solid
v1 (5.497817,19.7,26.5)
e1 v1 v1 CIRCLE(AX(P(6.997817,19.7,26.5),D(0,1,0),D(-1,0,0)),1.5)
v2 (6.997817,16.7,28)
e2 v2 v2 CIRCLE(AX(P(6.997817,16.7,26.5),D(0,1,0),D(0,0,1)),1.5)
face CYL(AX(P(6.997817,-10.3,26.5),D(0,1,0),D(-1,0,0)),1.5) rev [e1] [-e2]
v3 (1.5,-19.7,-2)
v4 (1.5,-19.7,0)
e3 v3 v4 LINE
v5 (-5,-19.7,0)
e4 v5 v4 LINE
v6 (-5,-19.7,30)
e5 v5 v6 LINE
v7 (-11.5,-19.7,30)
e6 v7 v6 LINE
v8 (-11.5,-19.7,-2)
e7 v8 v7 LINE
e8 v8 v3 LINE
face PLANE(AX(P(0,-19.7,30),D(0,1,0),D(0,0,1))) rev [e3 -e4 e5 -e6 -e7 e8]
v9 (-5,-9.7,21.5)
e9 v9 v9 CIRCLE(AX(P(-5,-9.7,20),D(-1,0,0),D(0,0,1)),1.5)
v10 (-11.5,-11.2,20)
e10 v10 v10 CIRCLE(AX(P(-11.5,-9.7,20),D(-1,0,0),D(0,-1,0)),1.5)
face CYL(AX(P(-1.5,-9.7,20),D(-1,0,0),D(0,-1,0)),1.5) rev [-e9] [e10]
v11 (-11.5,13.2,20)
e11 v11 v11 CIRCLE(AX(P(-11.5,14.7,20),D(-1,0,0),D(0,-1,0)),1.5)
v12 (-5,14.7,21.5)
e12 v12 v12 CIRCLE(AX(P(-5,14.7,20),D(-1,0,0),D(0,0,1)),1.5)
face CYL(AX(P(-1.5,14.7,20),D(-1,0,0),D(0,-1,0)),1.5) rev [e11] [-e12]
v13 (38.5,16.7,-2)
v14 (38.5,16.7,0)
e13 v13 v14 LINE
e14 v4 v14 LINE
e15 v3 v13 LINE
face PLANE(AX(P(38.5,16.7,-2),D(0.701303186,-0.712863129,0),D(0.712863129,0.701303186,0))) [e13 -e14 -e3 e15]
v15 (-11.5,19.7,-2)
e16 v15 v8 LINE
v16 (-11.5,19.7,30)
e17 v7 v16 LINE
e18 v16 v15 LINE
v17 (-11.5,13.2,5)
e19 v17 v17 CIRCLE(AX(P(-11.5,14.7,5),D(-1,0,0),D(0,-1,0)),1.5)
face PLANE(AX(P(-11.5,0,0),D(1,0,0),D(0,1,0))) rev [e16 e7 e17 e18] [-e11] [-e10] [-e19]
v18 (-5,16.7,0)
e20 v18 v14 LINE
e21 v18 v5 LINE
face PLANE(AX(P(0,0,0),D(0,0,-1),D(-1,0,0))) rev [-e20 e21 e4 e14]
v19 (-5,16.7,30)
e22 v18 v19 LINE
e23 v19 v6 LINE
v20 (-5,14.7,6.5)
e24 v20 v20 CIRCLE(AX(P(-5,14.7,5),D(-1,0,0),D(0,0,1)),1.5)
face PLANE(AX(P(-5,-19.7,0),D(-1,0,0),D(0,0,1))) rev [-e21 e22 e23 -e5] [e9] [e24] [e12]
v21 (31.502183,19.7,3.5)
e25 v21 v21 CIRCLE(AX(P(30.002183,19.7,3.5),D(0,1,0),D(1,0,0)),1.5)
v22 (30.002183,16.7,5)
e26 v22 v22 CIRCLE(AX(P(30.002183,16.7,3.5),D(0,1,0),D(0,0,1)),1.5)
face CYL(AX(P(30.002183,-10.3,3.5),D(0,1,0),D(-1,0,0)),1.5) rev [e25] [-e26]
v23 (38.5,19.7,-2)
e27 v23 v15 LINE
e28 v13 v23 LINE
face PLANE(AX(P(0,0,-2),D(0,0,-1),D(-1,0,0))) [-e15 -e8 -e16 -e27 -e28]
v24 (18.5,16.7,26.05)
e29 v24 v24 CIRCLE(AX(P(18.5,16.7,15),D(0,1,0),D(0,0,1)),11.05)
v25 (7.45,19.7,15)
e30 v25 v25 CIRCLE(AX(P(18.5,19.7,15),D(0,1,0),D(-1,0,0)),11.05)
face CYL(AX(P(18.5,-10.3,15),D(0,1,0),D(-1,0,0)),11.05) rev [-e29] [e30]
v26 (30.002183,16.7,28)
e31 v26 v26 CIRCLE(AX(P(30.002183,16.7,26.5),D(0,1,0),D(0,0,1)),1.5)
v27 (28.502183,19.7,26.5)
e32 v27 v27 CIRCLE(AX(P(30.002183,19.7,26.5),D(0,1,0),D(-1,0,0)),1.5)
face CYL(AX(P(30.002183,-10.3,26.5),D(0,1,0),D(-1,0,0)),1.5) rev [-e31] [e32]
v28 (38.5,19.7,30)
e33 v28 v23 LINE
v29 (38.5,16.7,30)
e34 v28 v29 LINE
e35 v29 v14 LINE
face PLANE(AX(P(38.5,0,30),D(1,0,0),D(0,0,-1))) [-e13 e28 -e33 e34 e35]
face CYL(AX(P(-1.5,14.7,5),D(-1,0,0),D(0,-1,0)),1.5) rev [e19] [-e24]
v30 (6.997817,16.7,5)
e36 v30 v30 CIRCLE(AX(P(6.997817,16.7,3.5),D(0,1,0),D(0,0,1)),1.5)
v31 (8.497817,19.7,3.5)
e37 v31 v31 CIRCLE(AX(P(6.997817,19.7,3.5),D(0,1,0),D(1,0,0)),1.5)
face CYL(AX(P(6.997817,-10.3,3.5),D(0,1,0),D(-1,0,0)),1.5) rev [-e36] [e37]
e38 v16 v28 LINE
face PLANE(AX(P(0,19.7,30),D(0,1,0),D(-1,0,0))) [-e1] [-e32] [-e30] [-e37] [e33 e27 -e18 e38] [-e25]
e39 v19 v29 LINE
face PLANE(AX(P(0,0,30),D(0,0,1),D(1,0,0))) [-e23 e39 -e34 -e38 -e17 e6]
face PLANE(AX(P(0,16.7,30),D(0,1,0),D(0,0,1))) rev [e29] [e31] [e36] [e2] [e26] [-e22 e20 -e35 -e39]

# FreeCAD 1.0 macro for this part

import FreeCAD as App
import Part
import Sketcher


def add_polygon(sketch, points):
    """Adds a closed chain of lines whose ends are joined by coincident constraints."""
    first, n = sketch.GeometryCount, len(points)
    for a, b in zip(points, points[1:] + points[:1]):
        sketch.addGeometry(Part.LineSegment(App.Vector(*a, 0), App.Vector(*b, 0)), False)
    for i in range(n):
        sketch.addConstraint(Sketcher.Constraint("Coincident", first + i, 2, first + (i + 1) % n, 1))

doc = App.newDocument("Part")
params = doc.addObject("Spreadsheet::Sheet", "Params")
for row, (alias, value) in enumerate([
    ("sketch1_width", "3 mm"),
    ("sketch1_width2", "37 mm"),
    ("sketch1_height", "36.4 mm"),
    ("pad1_length", "30 mm"),
    ("sketch2_diameter", "3 mm"),
    ("sketch2_diameter2", "22.1 mm"),
    ("pocket1_length", "30 mm"),
    ("sketch3_width", "40 mm"),
    ("sketch3_width2", "3 mm"),
    ("sketch3_height", "39.4 mm"),
    ("pad2_length", "2 mm"),
    ("sketch4_height", "32 mm"),
    ("sketch4_width", "39.4 mm"),
    ("pad3_length", "10 mm"),
    ("sketch5_width", "6.5 mm"),
    ("sketch5_height", "36.4 mm"),
    ("pocket2_length", "30 mm"),
    ("sketch6_diameter", "3 mm"),
    ("pocket3_length", "10 mm"),
], start=1):
    params.set(f"A{row}", alias)
    params.set(f"B{row}", "=" + value)
    params.setAlias(f"B{row}", alias)

body = doc.addObject("PartDesign::Body", "Body")

sketch1 = body.newObject("Sketcher::SketchObject", "Sketch")
sketch1.AttachmentSupport = (doc.getObject("XY_Plane"), [""])
sketch1.MapMode = "FlatFace"
add_polygon(sketch1, [(-1.5, -19.7), (1.5, -19.7), (1.5, 16.7), (38.5, 16.7), (38.5, 19.7), (-1.5, 19.7)])
sketch1.addConstraint([
    Sketcher.Constraint("Horizontal", 0),
    Sketcher.Constraint("Vertical", 1),
    Sketcher.Constraint("Horizontal", 2),
    Sketcher.Constraint("Vertical", 3),
    Sketcher.Constraint("Horizontal", 4),
    Sketcher.Constraint("Vertical", 5),
    Sketcher.Constraint("Symmetric", 0, 2, 4, 2, -1, 1),
    Sketcher.Constraint("Equal", 0, 3),
    Sketcher.Constraint("DistanceX", 0, 1, 0, 2, 3.0),
    Sketcher.Constraint("DistanceX", 2, 1, 2, 2, 37.0),
    Sketcher.Constraint("DistanceY", 1, 1, 1, 2, 36.4),
])
sketch1.setExpression("Constraints[14]", "Params.sketch1_width")
sketch1.setExpression("Constraints[15]", "Params.sketch1_width2")
sketch1.setExpression("Constraints[16]", "Params.sketch1_height")
pad1 = body.newObject("PartDesign::Pad", "Pad")
pad1.Profile = sketch1
pad1.setExpression("Length", "Params.pad1_length")

sketch2 = body.newObject("Sketcher::SketchObject", "Sketch001")
sketch2.AttachmentSupport = (doc.getObject("XZ_Plane"), [""])
sketch2.MapMode = "FlatFace"
sketch2.AttachmentOffset = App.Placement(App.Vector(0, 0, -19.7), App.Rotation())
sketch2.addGeometry([
    Part.Circle(App.Vector(18.5, 15, 0), App.Vector(0, 0, 1), 11.1),
    Part.Circle(App.Vector(7, 26.5, 0), App.Vector(0, 0, 1), 1.5),
    Part.Circle(App.Vector(30, 26.5, 0), App.Vector(0, 0, 1), 1.5),
    Part.Circle(App.Vector(30, 3.5, 0), App.Vector(0, 0, 1), 1.5),
    Part.Circle(App.Vector(7, 3.5, 0), App.Vector(0, 0, 1), 1.5),
], False)
sketch2.addConstraint([
    Sketcher.Constraint("Equal", 1, 2),
    Sketcher.Constraint("Equal", 2, 3),
    Sketcher.Constraint("Equal", 3, 4),
    Sketcher.Constraint("Horizontal", 1, 3, 2, 3),
    Sketcher.Constraint("Horizontal", 3, 3, 4, 3),
    Sketcher.Constraint("Vertical", 2, 3, 3, 3),
    Sketcher.Constraint("Vertical", 1, 3, 4, 3),
    Sketcher.Constraint("Diameter", 1, 3.0),
    Sketcher.Constraint("Diameter", 0, 22.1),
    Sketcher.Constraint("DistanceY", -1, 1, 0, 3, 15.0),
    Sketcher.Constraint("DistanceY", 3, 3, 2, 3, 23.0),
    Sketcher.Constraint("DistanceX", -1, 1, 0, 3, 18.5),
    Sketcher.Constraint("DistanceY", -1, 1, 1, 3, 26.5),
    Sketcher.Constraint("DistanceX", -1, 1, 1, 3, 6.997817),
    Sketcher.Constraint("DistanceX", -1, 1, 2, 3, 30.002183),
])
sketch2.setExpression("Constraints[7]", "Params.sketch2_diameter")
sketch2.setExpression("Constraints[8]", "Params.sketch2_diameter2")
pocket1 = body.newObject("PartDesign::Pocket", "Pocket")
pocket1.Profile = sketch2
pocket1.setExpression("Length", "Params.pocket1_length")
pocket1.Reversed = True

sketch3 = body.newObject("Sketcher::SketchObject", "Sketch002")
sketch3.AttachmentSupport = (doc.getObject("XY_Plane"), [""])
sketch3.MapMode = "FlatFace"
add_polygon(sketch3, [(38.5, 19.7), (-1.5, 19.7), (-1.5, -19.7), (1.5, -19.7), (38.5, 16.7)])
sketch3.addConstraint([
    Sketcher.Constraint("Horizontal", 0),
    Sketcher.Constraint("Vertical", 1),
    Sketcher.Constraint("Horizontal", 2),
    Sketcher.Constraint("Vertical", 4),
    Sketcher.Constraint("Symmetric", 0, 2, 2, 2, -1, 1),
    Sketcher.Constraint("Equal", 2, 4),
    Sketcher.Constraint("DistanceX", 0, 2, 0, 1, 40.0),
    Sketcher.Constraint("DistanceX", 2, 1, 2, 2, 3.0),
    Sketcher.Constraint("DistanceY", 1, 2, 1, 1, 39.4),
])
sketch3.setExpression("Constraints[11]", "Params.sketch3_width")
sketch3.setExpression("Constraints[12]", "Params.sketch3_width2")
sketch3.setExpression("Constraints[13]", "Params.sketch3_height")
pad2 = body.newObject("PartDesign::Pad", "Pad001")
pad2.Profile = sketch3
pad2.setExpression("Length", "Params.pad2_length")
pad2.Reversed = True

sketch4 = body.newObject("Sketcher::SketchObject", "Sketch003")
sketch4.AttachmentSupport = (doc.getObject("YZ_Plane"), [""])
sketch4.MapMode = "FlatFace"
sketch4.AttachmentOffset = App.Placement(App.Vector(0, 0, -1.5), App.Rotation())
add_polygon(sketch4, [(20, -2), (-20, -2), (-20, 30), (20, 30)])
sketch4.addConstraint([
    Sketcher.Constraint("Horizontal", 0),
    Sketcher.Constraint("Vertical", 1),
    Sketcher.Constraint("Horizontal", 2),
    Sketcher.Constraint("Vertical", 3),
    Sketcher.Constraint("DistanceY", 1, 1, 1, 2, 32.0),
    Sketcher.Constraint("DistanceX", 0, 2, 0, 1, 39.4),
    Sketcher.Constraint("DistanceY", 0, 2, -1, 1, 2.0),
    Sketcher.Constraint("DistanceX", 0, 2, -1, 1, 19.7),
])
sketch4.setExpression("Constraints[8]", "Params.sketch4_height")
sketch4.setExpression("Constraints[9]", "Params.sketch4_width")
pad3 = body.newObject("PartDesign::Pad", "Pad002")
pad3.Profile = sketch4
pad3.setExpression("Length", "Params.pad3_length")
pad3.Reversed = True

sketch5 = body.newObject("Sketcher::SketchObject", "Sketch004")
sketch5.AttachmentSupport = (doc.getObject("XY_Plane"), [""])
sketch5.MapMode = "FlatFace"
sketch5.AttachmentOffset = App.Placement(App.Vector(0, 0, 30), App.Rotation())
add_polygon(sketch5, [(-5, 17), (-5, -20), (2, -20), (2, 17)])
sketch5.addConstraint([
    Sketcher.Constraint("Vertical", 0),
    Sketcher.Constraint("Horizontal", 1),
    Sketcher.Constraint("Vertical", 2),
    Sketcher.Constraint("Horizontal", 3),
    Sketcher.Constraint("DistanceX", 1, 1, 1, 2, 6.5),
    Sketcher.Constraint("DistanceY", 0, 2, 0, 1, 36.4),
    Sketcher.Constraint("DistanceX", 0, 2, -1, 1, 5.0),
    Sketcher.Constraint("DistanceY", 0, 2, -1, 1, 19.7),
])
sketch5.setExpression("Constraints[8]", "Params.sketch5_width")
sketch5.setExpression("Constraints[9]", "Params.sketch5_height")
pocket2 = body.newObject("PartDesign::Pocket", "Pocket001")
pocket2.Profile = sketch5
pocket2.setExpression("Length", "Params.pocket2_length")

sketch6 = body.newObject("Sketcher::SketchObject", "Sketch005")
sketch6.AttachmentSupport = (doc.getObject("YZ_Plane"), [""])
sketch6.MapMode = "FlatFace"
sketch6.AttachmentOffset = App.Placement(App.Vector(0, 0, -11.5), App.Rotation())
sketch6.addGeometry([
    Part.Circle(App.Vector(14.7, 5, 0), App.Vector(0, 0, 1), 1.5),
    Part.Circle(App.Vector(14.7, 20, 0), App.Vector(0, 0, 1), 1.5),
    Part.Circle(App.Vector(-9.7, 20, 0), App.Vector(0, 0, 1), 1.5),
], False)
sketch6.addConstraint([
    Sketcher.Constraint("Equal", 0, 1),
    Sketcher.Constraint("Equal", 1, 2),
    Sketcher.Constraint("Horizontal", 1, 3, 2, 3),
    Sketcher.Constraint("Vertical", 0, 3, 1, 3),
    Sketcher.Constraint("Diameter", 0, 3.0),
    Sketcher.Constraint("DistanceY", -1, 1, 0, 3, 5.0),
    Sketcher.Constraint("DistanceY", -1, 1, 1, 3, 20.0),
    Sketcher.Constraint("DistanceX", -1, 1, 0, 3, 14.7),
    Sketcher.Constraint("DistanceX", 2, 3, -1, 1, 9.7),
])
sketch6.setExpression("Constraints[4]", "Params.sketch6_diameter")
pocket3 = body.newObject("PartDesign::Pocket", "Pocket002")
pocket3.Profile = sketch6
pocket3.setExpression("Length", "Params.pocket3_length")
pocket3.Reversed = True

doc.recompute()
